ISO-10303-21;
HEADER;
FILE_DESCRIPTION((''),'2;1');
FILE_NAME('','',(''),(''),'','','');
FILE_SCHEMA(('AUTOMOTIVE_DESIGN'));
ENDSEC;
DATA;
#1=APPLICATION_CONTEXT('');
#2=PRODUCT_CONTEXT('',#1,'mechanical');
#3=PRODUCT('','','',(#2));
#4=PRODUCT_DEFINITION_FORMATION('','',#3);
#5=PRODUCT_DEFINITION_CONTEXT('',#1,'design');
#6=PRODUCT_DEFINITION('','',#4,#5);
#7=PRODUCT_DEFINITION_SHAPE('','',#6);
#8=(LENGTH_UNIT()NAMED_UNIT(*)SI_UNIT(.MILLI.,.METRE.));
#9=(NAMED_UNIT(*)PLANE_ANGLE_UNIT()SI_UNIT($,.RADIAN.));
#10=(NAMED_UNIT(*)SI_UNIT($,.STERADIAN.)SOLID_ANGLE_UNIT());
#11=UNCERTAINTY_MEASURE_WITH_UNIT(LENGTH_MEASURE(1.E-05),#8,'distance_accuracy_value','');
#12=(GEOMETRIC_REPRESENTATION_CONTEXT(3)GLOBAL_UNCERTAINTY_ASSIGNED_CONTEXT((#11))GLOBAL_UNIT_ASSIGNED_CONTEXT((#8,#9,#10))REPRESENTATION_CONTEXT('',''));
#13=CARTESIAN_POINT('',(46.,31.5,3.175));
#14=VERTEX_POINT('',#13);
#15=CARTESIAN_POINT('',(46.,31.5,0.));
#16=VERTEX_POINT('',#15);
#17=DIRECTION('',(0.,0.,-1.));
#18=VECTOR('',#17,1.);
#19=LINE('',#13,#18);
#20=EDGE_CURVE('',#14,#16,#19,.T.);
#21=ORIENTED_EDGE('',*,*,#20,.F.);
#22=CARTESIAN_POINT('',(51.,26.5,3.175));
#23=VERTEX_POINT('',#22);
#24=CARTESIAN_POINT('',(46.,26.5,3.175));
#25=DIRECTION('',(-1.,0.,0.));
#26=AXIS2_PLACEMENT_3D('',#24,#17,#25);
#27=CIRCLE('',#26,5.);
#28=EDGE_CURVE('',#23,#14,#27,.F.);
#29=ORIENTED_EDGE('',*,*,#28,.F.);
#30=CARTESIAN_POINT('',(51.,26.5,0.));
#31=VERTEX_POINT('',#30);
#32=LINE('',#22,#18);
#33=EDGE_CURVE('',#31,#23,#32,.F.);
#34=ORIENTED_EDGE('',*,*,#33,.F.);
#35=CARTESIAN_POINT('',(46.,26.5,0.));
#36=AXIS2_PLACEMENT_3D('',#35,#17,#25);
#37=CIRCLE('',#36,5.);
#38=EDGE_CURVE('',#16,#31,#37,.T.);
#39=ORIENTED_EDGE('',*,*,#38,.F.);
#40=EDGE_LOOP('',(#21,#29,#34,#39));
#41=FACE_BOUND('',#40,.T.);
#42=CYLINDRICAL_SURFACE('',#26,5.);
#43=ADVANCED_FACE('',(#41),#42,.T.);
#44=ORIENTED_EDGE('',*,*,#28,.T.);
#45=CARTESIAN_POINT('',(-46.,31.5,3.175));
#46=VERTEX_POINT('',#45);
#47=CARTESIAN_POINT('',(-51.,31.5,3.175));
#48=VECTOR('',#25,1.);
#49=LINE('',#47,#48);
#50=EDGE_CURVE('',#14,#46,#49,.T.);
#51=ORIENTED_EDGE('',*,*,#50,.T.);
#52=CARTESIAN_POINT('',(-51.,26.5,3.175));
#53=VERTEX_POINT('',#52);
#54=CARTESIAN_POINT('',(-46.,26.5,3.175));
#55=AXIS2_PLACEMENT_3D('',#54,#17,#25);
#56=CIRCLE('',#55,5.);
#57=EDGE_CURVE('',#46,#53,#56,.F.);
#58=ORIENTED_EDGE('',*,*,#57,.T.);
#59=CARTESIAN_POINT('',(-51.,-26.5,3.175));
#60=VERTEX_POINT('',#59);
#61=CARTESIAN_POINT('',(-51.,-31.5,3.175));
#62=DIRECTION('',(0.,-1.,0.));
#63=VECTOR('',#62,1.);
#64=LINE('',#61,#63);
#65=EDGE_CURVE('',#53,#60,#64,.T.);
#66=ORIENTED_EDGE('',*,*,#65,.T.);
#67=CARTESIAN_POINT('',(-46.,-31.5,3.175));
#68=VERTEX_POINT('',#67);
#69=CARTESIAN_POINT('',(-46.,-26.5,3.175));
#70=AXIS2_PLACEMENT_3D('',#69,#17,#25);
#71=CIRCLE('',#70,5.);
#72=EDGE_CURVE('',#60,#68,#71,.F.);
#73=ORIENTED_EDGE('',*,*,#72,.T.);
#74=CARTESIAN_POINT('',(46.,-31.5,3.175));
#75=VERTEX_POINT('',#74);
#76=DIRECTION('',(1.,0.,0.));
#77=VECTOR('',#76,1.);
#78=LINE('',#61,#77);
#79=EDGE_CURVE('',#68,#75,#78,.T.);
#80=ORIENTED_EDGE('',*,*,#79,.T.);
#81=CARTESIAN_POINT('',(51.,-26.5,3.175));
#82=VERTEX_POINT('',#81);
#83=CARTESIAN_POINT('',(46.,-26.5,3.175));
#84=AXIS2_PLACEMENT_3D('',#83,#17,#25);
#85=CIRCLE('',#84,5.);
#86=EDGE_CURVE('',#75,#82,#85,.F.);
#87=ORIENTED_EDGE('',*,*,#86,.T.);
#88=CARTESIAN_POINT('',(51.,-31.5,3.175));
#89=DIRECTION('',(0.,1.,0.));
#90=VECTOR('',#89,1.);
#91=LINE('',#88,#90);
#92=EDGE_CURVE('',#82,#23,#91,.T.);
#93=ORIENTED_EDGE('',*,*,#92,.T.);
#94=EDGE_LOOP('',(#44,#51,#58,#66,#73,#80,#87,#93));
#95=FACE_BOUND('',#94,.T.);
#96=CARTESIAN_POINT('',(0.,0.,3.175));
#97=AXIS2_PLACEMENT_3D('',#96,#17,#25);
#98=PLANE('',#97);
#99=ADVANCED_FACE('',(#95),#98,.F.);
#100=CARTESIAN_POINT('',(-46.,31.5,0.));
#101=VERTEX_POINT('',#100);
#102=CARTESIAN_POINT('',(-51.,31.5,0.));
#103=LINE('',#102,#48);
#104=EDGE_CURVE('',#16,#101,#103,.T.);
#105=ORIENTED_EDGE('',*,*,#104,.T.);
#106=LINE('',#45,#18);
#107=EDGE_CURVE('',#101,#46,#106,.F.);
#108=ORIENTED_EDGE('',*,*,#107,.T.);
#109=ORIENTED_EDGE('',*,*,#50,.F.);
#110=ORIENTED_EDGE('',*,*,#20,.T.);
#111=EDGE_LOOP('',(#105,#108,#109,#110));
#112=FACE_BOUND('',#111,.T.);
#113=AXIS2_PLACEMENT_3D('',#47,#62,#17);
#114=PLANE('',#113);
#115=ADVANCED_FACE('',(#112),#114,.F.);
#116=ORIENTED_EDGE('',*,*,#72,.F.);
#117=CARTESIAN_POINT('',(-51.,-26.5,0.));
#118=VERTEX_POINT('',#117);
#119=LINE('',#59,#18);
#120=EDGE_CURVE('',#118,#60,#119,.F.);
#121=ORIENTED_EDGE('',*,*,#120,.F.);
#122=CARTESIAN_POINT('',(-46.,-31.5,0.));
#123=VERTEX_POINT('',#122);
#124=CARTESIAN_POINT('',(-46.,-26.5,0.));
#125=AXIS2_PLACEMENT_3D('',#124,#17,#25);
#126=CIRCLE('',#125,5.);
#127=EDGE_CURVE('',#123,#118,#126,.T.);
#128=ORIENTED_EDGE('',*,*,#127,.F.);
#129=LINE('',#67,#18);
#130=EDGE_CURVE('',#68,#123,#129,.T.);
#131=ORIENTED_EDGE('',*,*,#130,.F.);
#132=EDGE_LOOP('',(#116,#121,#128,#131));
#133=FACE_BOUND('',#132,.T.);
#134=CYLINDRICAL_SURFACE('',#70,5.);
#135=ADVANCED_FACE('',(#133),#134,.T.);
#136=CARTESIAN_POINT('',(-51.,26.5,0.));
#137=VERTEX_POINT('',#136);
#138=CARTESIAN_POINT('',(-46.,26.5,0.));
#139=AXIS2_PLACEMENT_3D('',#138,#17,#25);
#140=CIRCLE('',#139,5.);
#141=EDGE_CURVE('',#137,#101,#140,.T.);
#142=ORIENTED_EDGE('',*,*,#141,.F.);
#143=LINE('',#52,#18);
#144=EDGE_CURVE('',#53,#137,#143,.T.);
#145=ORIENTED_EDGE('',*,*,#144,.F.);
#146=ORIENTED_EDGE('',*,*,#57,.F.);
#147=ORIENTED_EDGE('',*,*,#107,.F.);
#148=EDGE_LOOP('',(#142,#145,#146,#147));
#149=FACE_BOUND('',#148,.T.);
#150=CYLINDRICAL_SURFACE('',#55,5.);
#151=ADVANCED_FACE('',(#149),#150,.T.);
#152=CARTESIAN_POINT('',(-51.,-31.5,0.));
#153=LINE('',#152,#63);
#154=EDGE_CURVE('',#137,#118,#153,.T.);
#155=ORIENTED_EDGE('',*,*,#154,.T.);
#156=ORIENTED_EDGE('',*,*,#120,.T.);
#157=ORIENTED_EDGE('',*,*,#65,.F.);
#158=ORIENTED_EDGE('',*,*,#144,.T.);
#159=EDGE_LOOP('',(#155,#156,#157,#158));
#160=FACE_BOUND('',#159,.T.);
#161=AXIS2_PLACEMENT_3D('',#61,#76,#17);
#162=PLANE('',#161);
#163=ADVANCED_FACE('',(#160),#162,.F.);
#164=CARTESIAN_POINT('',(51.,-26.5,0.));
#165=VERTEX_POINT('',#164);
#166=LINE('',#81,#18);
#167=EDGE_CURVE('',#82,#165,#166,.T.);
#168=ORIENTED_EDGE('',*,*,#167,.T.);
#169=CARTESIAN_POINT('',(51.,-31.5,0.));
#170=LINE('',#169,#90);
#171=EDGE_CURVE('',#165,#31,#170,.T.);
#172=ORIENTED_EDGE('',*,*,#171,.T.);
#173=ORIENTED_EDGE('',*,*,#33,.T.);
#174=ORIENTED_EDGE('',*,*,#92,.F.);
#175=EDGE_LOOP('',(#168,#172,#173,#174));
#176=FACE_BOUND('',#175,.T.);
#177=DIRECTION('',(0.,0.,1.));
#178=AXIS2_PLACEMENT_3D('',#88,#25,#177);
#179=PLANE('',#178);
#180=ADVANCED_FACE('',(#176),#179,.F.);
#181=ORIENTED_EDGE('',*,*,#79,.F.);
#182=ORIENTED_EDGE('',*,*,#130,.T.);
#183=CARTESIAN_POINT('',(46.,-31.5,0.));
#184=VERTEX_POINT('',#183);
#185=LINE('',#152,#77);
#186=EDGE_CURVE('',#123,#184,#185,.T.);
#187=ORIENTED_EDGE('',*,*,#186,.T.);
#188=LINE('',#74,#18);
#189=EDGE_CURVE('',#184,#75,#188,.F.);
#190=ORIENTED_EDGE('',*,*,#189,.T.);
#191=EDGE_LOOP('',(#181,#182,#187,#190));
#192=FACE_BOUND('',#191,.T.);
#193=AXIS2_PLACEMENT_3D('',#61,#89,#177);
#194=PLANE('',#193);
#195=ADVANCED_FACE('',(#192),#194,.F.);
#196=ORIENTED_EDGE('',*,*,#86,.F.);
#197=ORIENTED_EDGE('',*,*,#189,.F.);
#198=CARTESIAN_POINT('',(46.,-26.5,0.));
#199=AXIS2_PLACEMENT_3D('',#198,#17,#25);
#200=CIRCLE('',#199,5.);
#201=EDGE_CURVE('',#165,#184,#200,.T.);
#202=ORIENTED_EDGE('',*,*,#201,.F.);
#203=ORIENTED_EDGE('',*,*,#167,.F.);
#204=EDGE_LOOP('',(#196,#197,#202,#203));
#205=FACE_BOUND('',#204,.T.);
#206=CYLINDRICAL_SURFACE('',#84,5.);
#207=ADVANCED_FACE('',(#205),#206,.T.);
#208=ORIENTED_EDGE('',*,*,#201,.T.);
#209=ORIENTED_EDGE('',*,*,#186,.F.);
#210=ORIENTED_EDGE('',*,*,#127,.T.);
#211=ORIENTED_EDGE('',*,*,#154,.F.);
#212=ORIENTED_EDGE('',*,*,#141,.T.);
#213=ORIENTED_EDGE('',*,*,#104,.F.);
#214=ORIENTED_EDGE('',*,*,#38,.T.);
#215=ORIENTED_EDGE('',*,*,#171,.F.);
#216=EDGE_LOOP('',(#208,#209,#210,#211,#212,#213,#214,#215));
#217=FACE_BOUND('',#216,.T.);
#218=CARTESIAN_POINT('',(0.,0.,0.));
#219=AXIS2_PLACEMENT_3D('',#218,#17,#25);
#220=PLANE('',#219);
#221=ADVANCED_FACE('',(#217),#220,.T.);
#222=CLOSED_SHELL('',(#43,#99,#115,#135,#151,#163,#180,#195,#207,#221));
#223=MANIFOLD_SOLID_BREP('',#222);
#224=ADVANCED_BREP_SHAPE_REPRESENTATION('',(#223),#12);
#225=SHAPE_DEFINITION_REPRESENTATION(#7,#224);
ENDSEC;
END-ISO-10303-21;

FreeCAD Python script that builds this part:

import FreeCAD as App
import Part
import Sketcher
from FreeCAD import Vector


def edges_at(feature, points):
    """Names of the edges that pass closest to the given points."""
    edges = feature.Shape.Edges
    near = lambda p: min(range(len(edges)), key=lambda i: edges[i].distToShape(Part.Vertex(*p))[0])
    return sorted({f"Edge{near(p) + 1}" for p in points})

doc = App.newDocument("Part")
body = doc.addObject("PartDesign::Body", "Body")

sketch1 = body.newObject("Sketcher::SketchObject", "Sketch")
sketch1.AttachmentSupport = (doc.getObject("XY_Plane"), [""])
sketch1.MapMode = "FlatFace"
sketch1.addGeometry([
    Part.LineSegment(Vector(-51, 31.5, 0), Vector(-51, -31.5, 0)),
    Part.LineSegment(Vector(-51, -31.5, 0), Vector(51, -31.5, 0)),
    Part.LineSegment(Vector(51, -31.5, 0), Vector(51, 31.5, 0)),
    Part.LineSegment(Vector(51, 31.5, 0), Vector(-51, 31.5, 0)),
], False)
sketch1.addConstraint([
    Sketcher.Constraint("Coincident", 0, 2, 1, 1),
    Sketcher.Constraint("Coincident", 1, 2, 2, 1),
    Sketcher.Constraint("Coincident", 2, 2, 3, 1),
    Sketcher.Constraint("Coincident", 3, 2, 0, 1),
    Sketcher.Constraint("Vertical", 0),
    Sketcher.Constraint("Horizontal", 1),
    Sketcher.Constraint("Vertical", 2),
    Sketcher.Constraint("Horizontal", 3),
    Sketcher.Constraint("Symmetric", 0, 2, 2, 2, -1, 1),
    Sketcher.Constraint("DistanceX", 1, 1, 1, 2, 102.0),
    Sketcher.Constraint("DistanceY", 0, 2, 0, 1, 63.0),
])
pad1 = body.newObject("PartDesign::Pad", "Pad")
pad1.Profile = sketch1
pad1.Length = 3.175
doc.recompute()

fillet = body.newObject("PartDesign::Fillet", "Fillet")
fillet.Base = (pad1, edges_at(pad1, [
    (51, -31.5, 1.587),
    (-51, -31.5, 1.587),
    (-51, 31.5, 1.587),
    (51, 31.5, 1.587),
]))
fillet.Radius = 5

doc.recompute()
